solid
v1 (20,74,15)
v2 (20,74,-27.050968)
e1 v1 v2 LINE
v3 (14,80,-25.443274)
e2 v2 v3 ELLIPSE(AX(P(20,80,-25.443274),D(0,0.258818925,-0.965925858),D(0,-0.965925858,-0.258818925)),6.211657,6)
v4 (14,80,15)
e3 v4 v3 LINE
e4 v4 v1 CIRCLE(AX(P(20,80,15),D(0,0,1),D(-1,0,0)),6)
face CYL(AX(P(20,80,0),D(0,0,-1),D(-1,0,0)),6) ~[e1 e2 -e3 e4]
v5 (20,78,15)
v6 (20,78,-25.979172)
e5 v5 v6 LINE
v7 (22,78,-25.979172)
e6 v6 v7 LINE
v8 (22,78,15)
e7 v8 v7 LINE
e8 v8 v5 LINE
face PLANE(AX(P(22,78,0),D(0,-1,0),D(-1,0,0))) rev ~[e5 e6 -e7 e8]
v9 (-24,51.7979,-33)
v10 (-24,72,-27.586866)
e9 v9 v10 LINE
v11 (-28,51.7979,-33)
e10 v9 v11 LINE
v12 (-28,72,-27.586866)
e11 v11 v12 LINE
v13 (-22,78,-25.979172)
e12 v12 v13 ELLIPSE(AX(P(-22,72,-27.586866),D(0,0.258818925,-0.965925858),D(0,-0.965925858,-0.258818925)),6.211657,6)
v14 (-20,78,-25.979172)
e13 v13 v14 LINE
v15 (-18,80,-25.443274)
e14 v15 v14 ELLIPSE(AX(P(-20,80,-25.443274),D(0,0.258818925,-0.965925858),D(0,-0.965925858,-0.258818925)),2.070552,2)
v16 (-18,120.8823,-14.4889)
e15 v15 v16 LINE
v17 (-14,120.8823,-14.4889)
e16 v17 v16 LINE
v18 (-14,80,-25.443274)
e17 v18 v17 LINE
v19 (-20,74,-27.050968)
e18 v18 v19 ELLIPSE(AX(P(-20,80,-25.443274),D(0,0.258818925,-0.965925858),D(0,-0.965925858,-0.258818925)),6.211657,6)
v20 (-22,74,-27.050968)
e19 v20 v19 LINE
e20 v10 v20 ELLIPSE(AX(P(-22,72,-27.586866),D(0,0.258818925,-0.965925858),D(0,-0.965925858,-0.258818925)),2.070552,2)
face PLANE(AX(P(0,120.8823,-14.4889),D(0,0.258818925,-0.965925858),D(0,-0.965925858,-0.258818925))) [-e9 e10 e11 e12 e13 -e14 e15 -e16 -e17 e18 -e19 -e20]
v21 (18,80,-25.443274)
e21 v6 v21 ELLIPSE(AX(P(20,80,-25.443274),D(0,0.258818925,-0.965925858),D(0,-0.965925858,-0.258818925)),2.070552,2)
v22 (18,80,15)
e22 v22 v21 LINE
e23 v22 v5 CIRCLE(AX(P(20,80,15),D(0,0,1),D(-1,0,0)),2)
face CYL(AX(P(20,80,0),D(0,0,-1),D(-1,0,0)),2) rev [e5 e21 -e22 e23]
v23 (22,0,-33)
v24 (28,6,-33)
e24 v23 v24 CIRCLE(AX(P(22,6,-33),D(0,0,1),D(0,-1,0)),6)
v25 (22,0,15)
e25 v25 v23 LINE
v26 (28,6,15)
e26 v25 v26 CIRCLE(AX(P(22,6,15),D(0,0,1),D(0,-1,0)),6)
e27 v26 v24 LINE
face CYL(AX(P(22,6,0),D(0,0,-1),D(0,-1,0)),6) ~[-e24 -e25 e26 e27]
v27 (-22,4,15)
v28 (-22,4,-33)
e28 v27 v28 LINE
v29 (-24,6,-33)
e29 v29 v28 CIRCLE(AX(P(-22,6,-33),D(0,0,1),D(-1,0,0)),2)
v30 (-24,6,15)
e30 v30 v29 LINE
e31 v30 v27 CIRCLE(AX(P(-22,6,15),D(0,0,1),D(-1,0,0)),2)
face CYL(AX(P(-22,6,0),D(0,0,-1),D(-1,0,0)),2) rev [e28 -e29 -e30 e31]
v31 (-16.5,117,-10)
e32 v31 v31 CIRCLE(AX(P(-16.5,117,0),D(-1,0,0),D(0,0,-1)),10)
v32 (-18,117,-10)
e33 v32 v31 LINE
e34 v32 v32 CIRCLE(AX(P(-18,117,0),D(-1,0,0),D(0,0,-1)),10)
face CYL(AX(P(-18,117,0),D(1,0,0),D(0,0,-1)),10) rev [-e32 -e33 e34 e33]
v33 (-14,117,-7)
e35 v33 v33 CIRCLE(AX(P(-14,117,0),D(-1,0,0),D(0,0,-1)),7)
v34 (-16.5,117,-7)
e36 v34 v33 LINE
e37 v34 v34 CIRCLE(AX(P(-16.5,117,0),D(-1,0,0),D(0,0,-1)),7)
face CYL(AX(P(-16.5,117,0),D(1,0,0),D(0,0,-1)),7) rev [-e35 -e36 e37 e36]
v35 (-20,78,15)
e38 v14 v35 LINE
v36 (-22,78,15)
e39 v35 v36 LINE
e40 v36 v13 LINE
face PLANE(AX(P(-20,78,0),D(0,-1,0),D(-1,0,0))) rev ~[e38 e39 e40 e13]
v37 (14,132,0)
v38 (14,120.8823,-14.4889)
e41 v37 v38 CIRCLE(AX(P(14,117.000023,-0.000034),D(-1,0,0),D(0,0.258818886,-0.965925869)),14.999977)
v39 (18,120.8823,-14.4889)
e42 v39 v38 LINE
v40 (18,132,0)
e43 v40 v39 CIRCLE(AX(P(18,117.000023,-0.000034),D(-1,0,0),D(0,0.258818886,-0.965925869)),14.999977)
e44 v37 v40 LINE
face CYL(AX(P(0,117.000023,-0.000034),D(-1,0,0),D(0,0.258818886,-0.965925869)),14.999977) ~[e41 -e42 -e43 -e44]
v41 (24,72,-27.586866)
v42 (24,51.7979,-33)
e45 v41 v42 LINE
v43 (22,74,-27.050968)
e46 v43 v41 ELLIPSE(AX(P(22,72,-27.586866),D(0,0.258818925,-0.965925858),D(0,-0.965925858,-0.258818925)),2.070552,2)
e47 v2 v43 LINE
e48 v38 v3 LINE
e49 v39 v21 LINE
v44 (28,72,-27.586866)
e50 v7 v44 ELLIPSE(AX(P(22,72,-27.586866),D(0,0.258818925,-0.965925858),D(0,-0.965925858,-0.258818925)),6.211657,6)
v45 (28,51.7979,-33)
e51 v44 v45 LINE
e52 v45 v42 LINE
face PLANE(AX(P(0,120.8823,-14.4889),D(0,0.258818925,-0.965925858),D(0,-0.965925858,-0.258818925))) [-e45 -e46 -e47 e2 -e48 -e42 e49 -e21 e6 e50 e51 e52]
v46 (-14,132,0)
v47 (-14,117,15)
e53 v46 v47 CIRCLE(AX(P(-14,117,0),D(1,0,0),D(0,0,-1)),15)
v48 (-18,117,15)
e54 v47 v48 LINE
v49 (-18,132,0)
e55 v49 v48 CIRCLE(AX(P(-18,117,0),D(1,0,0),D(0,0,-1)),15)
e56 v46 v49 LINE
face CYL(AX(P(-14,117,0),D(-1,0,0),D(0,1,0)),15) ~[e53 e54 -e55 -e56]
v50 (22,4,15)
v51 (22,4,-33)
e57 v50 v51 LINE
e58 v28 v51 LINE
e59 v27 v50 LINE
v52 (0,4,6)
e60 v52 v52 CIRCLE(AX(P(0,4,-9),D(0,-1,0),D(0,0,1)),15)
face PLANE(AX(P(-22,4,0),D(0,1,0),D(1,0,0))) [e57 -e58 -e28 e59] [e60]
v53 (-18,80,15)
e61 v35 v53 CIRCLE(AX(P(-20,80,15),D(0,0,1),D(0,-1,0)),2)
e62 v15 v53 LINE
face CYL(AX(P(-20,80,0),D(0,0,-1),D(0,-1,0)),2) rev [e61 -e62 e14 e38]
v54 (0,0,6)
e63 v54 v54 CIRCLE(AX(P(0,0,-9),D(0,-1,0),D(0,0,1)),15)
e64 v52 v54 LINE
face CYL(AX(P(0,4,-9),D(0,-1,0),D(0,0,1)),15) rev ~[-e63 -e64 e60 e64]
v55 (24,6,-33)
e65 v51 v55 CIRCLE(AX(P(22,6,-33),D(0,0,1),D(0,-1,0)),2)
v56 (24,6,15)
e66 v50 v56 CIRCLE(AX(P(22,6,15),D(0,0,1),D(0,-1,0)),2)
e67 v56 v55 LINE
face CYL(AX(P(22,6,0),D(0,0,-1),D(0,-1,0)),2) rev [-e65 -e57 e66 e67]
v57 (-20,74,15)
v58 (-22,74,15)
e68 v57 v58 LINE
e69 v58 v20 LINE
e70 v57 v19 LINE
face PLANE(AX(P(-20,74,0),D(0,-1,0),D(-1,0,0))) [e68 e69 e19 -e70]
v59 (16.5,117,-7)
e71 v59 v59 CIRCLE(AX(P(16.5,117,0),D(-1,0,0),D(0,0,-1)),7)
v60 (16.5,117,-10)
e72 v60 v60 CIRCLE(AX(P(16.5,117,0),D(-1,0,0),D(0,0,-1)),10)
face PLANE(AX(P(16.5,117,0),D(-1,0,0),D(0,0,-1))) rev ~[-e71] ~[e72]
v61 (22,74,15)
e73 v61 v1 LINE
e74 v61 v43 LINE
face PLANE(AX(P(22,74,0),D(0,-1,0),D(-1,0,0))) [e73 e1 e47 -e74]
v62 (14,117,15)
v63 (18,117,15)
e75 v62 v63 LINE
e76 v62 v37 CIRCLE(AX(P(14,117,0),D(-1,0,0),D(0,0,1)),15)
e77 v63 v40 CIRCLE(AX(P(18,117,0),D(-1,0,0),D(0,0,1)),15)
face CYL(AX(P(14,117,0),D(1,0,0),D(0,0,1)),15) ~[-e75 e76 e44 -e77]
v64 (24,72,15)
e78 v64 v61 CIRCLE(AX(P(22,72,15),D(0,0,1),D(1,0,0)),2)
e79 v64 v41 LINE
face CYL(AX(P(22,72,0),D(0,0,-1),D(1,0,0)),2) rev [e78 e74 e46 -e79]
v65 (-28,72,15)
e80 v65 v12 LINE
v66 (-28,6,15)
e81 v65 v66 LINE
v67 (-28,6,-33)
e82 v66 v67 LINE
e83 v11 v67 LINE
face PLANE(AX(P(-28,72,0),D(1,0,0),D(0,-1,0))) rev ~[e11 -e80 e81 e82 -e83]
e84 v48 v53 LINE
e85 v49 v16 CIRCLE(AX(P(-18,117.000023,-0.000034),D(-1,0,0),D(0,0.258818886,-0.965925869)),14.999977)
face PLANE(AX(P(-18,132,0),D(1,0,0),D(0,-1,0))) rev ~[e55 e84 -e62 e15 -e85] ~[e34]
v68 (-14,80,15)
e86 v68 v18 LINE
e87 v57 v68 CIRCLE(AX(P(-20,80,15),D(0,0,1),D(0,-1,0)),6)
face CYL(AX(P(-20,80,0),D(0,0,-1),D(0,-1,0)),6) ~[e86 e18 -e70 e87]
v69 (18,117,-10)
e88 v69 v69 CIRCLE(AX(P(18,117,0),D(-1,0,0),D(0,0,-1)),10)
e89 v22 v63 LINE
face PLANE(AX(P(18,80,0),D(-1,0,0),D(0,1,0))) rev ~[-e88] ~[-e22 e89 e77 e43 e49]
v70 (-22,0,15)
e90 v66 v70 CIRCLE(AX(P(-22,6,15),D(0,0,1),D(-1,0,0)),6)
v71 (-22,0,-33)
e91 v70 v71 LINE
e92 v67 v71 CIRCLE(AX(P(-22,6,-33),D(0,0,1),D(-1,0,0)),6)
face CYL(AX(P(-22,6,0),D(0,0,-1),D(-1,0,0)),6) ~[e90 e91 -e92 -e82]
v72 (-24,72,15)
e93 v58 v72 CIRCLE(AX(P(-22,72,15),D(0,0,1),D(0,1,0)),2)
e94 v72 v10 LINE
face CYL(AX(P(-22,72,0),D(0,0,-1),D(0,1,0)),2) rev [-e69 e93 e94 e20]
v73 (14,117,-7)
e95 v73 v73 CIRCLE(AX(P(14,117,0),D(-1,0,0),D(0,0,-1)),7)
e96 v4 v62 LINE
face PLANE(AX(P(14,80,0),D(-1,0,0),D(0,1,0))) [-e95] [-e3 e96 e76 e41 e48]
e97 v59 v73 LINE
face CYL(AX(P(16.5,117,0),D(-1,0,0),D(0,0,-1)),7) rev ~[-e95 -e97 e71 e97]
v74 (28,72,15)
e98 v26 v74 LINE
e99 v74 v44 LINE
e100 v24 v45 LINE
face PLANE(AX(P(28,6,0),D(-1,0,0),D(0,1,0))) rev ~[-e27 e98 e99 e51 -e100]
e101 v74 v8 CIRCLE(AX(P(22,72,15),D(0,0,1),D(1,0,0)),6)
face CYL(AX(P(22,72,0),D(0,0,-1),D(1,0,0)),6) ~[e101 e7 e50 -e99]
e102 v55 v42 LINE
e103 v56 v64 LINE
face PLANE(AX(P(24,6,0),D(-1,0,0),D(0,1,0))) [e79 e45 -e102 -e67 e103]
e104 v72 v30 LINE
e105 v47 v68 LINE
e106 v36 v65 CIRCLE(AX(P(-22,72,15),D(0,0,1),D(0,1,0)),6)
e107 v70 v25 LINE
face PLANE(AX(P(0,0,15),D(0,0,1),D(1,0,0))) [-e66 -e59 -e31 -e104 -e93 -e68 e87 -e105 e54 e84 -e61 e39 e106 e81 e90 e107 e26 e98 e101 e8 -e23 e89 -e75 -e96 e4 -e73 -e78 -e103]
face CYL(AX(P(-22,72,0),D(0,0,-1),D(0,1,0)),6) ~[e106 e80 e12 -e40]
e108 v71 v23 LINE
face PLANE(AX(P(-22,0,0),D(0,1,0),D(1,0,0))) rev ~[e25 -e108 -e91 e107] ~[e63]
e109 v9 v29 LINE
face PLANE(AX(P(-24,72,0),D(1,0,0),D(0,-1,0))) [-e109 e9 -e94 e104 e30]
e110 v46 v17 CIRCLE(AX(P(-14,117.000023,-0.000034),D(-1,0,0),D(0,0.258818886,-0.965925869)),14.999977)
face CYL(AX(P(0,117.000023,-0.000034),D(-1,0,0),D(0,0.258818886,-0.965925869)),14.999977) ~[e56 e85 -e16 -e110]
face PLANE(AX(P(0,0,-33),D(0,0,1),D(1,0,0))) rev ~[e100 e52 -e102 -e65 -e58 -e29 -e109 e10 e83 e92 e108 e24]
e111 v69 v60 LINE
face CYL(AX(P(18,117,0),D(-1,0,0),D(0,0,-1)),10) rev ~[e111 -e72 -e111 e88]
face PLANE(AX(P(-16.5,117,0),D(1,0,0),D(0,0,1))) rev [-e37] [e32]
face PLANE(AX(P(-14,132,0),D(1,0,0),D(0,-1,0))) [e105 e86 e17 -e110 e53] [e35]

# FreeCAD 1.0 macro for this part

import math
import FreeCAD as App
import Part
import Sketcher
from FreeCAD import Vector
Q = App.Units.Quantity


def edges_at(feature, points):
    """Names of the edges that pass closest to the given points."""
    edges = feature.Shape.Edges
    near = lambda p: min(range(len(edges)), key=lambda i: edges[i].distToShape(Part.Vertex(*p))[0])
    return sorted({f"Edge{near(p) + 1}" for p in points})

doc = App.newDocument("Part")
body = doc.addObject("PartDesign::Body", "Body")

# Sketch on XY plane
sketch1 = body.newObject("Sketcher::SketchObject", "Sketch")
sketch1.AttachmentSupport = (doc.getObject("XY_Plane"), [""])
sketch1.MapMode = "FlatFace"
sketch1.addGeometry([
    Part.LineSegment(Vector(-14, 132, 0), Vector(-18, 132, 0)),  # 0
    Part.LineSegment(Vector(-18, 132, 0), Vector(-18, 80, 0)),  # 1
    Part.ArcOfCircle(Part.Circle(Vector(-20, 80, 0), Vector(0, 0, 1), 2), math.radians(-90), math.radians(0)),  # 2
    Part.LineSegment(Vector(-20, 78, 0), Vector(-22, 78, 0)),  # 3
    Part.ArcOfCircle(Part.Circle(Vector(-22, 72, 0), Vector(0, 0, 1), 6), math.radians(90), math.radians(180)),  # 4
    Part.LineSegment(Vector(-28, 72, 0), Vector(-28, 6, 0)),  # 5
    Part.ArcOfCircle(Part.Circle(Vector(-22, 6, 0), Vector(0, 0, 1), 6), math.radians(180), math.radians(270)),  # 6
    Part.LineSegment(Vector(-22, 0, 0), Vector(22, 0, 0)),  # 7
    Part.ArcOfCircle(Part.Circle(Vector(22, 6, 0), Vector(0, 0, 1), 6), math.radians(-90), math.radians(0)),  # 8
    Part.LineSegment(Vector(28, 6, 0), Vector(28, 72, 0)),  # 9
    Part.ArcOfCircle(Part.Circle(Vector(22, 72, 0), Vector(0, 0, 1), 6), math.radians(0), math.radians(90)),  # 10
    Part.LineSegment(Vector(22, 78, 0), Vector(20, 78, 0)),  # 11
    Part.ArcOfCircle(Part.Circle(Vector(20, 80, 0), Vector(0, 0, 1), 2), math.radians(180), math.radians(270)),  # 12
    Part.LineSegment(Vector(18, 80, 0), Vector(18, 132, 0)),  # 13
    Part.LineSegment(Vector(18, 132, 0), Vector(14, 132, 0)),  # 14
    Part.LineSegment(Vector(14, 132, 0), Vector(14, 80, 0)),  # 15
    Part.ArcOfCircle(Part.Circle(Vector(20, 80, 0), Vector(0, 0, 1), 6), math.radians(180), math.radians(270)),  # 16
    Part.LineSegment(Vector(20, 74, 0), Vector(22, 74, 0)),  # 17
    Part.ArcOfCircle(Part.Circle(Vector(22, 72, 0), Vector(0, 0, 1), 2), math.radians(0), math.radians(90)),  # 18
    Part.LineSegment(Vector(24, 72, 0), Vector(24, 6, 0)),  # 19
    Part.ArcOfCircle(Part.Circle(Vector(22, 6, 0), Vector(0, 0, 1), 2), math.radians(-90), math.radians(0)),  # 20
    Part.LineSegment(Vector(22, 4, 0), Vector(-22, 4, 0)),  # 21
    Part.ArcOfCircle(Part.Circle(Vector(-22, 6, 0), Vector(0, 0, 1), 2), math.radians(180), math.radians(270)),  # 22
    Part.LineSegment(Vector(-24, 6, 0), Vector(-24, 72, 0)),  # 23
    Part.ArcOfCircle(Part.Circle(Vector(-22, 72, 0), Vector(0, 0, 1), 2), math.radians(90), math.radians(180)),  # 24
    Part.LineSegment(Vector(-22, 74, 0), Vector(-20, 74, 0)),  # 25
    Part.ArcOfCircle(Part.Circle(Vector(-20, 80, 0), Vector(0, 0, 1), 6), math.radians(-90), math.radians(0)),  # 26
    Part.LineSegment(Vector(-14, 80, 0), Vector(-14, 132, 0)),  # 27
], False)
sketch1.addConstraint([
    Sketcher.Constraint("Coincident", 0, 2, 1, 1),
    Sketcher.Constraint("Tangent", 1, 2, 2, 2),
    Sketcher.Constraint("Tangent", 2, 1, 3, 1),
    Sketcher.Constraint("Tangent", 3, 2, 4, 1),
    Sketcher.Constraint("Tangent", 4, 2, 5, 1),
    Sketcher.Constraint("Tangent", 5, 2, 6, 1),
    Sketcher.Constraint("Tangent", 6, 2, 7, 1),
    Sketcher.Constraint("Tangent", 7, 2, 8, 1),
    Sketcher.Constraint("Tangent", 8, 2, 9, 1),
    Sketcher.Constraint("Tangent", 9, 2, 10, 1),
    Sketcher.Constraint("Tangent", 10, 2, 11, 1),
    Sketcher.Constraint("Tangent", 11, 2, 12, 2),
    Sketcher.Constraint("Tangent", 12, 1, 13, 1),
    Sketcher.Constraint("Coincident", 13, 2, 14, 1),
    Sketcher.Constraint("Coincident", 14, 2, 15, 1),
    Sketcher.Constraint("Tangent", 15, 2, 16, 1),
    Sketcher.Constraint("Tangent", 16, 2, 17, 1),
    Sketcher.Constraint("Tangent", 17, 2, 18, 2),
    Sketcher.Constraint("Tangent", 18, 1, 19, 1),
    Sketcher.Constraint("Tangent", 19, 2, 20, 2),
    Sketcher.Constraint("Tangent", 20, 1, 21, 1),
    Sketcher.Constraint("Tangent", 21, 2, 22, 2),
    Sketcher.Constraint("Tangent", 22, 1, 23, 1),
    Sketcher.Constraint("Tangent", 23, 2, 24, 2),
    Sketcher.Constraint("Tangent", 24, 1, 25, 1),
    Sketcher.Constraint("Tangent", 25, 2, 26, 1),
    Sketcher.Constraint("Tangent", 26, 2, 27, 1),
    Sketcher.Constraint("Coincident", 27, 2, 0, 1),
    Sketcher.Constraint("Horizontal", 0),
    Sketcher.Constraint("Vertical", 1),
    Sketcher.Constraint("Horizontal", 3),
    Sketcher.Constraint("Vertical", 5),
    Sketcher.Constraint("Horizontal", 7),
    Sketcher.Constraint("Vertical", 9),
    Sketcher.Constraint("Horizontal", 11),
    Sketcher.Constraint("Vertical", 13),
    Sketcher.Constraint("Horizontal", 14),
    Sketcher.Constraint("Vertical", 15),
    Sketcher.Constraint("Horizontal", 17),
    Sketcher.Constraint("Vertical", 19),
    Sketcher.Constraint("Horizontal", 21),
    Sketcher.Constraint("Vertical", 23),
    Sketcher.Constraint("Horizontal", 25),
    Sketcher.Constraint("Vertical", 27),
    Sketcher.Constraint("Coincident", 16, 3, 12, 3),
    Sketcher.Constraint("Coincident", 18, 3, 10, 3),
    Sketcher.Constraint("Coincident", 20, 3, 8, 3),
    Sketcher.Constraint("Coincident", 22, 3, 6, 3),
    Sketcher.Constraint("Coincident", 24, 3, 4, 3),
    Sketcher.Constraint("Coincident", 26, 3, 2, 3),
    Sketcher.Constraint("Equal", 4, 6),
    Sketcher.Constraint("Equal", 6, 8),
    Sketcher.Constraint("Equal", 8, 10),
    Sketcher.Constraint("Equal", 2, 12),
    Sketcher.Constraint("Equal", 10, 16),
    Sketcher.Constraint("Symmetric", 6, 2, 7, 2, -1, 1),
    Sketcher.Constraint("Symmetric", 2, 3, 12, 3, -2),
    Sketcher.Constraint("Horizontal", 0, 2, 13, 2),
    Sketcher.Constraint("Radius", 2, Q("2 mm")),
    Sketcher.Constraint("Radius", 4, Q("6 mm")),
    Sketcher.Constraint("DistanceX", 3, 2, 3, 1, Q("2 mm")),
    Sketcher.Constraint("DistanceY", -1, 1, 0, 2, Q("132 mm")),
    Sketcher.Constraint("DistanceY", -1, 1, 2, 1, Q("78 mm")),
    Sketcher.Constraint("DistanceX", 0, 2, 13, 2, Q("36 mm")),
])
pad1 = body.newObject("PartDesign::Pad", "Pad")
pad1.Profile = sketch1
pad1.Type = "TwoLengths"
pad1.Length = 15
pad1.Length2 = 33
doc.recompute()

fillet = body.newObject("PartDesign::Fillet", "Fillet")
fillet.Base = (pad1, edges_at(pad1, [(-16, 132, 15), (16, 132, 15)]))
fillet.Radius = 15

# Sketch on YZ plane
sketch2 = body.newObject("Sketcher::SketchObject", "Sketch001")
sketch2.AttachmentSupport = (doc.getObject("YZ_Plane"), [""])
sketch2.MapMode = "FlatFace"
sketch2.addGeometry([
    Part.LineSegment(Vector(52, -33, 0), Vector(132, -33, 0)),
    Part.LineSegment(Vector(132, -33, 0), Vector(132, 0, 0)),
    Part.ArcOfCircle(Part.Circle(Vector(117, 0, 0), Vector(0, 0, 1), 15), math.radians(-75), math.radians(0)),
    Part.LineSegment(Vector(121, -14, 0), Vector(52, -33, 0)),
], False)
sketch2.addConstraint([
    Sketcher.Constraint("Coincident", 0, 2, 1, 1),
    Sketcher.Constraint("Tangent", 1, 2, 2, 2),
    Sketcher.Constraint("Tangent", 2, 1, 3, 1),
    Sketcher.Constraint("Coincident", 3, 2, 0, 1),
    Sketcher.Constraint("Horizontal", 0),
    Sketcher.Constraint("Vertical", 1),
    Sketcher.Constraint("PointOnObject", 2, 3, -1),
    Sketcher.Constraint("Radius", 2, Q("15 mm")),
    Sketcher.Constraint("DistanceY", 1, 1, 1, 2, Q("33 mm")),
    Sketcher.Constraint("Angle", 3, Q("-165 deg")),
    Sketcher.Constraint("DistanceX", -1, 1, 2, 3, Q("117 mm")),
])
pocket1 = body.newObject("PartDesign::Pocket", "Pocket")
pocket1.Profile = sketch2
pocket1.Type = "ThroughAll"
pocket1.Midplane = True

# Sketch on YZ plane
sketch3 = body.newObject("Sketcher::SketchObject", "Sketch002")
sketch3.AttachmentSupport = (doc.getObject("YZ_Plane"), [""])
sketch3.MapMode = "FlatFace"
sketch3.AttachmentOffset = App.Placement(Vector(0, 0, 18), App.Rotation())
sketch3.addGeometry(Part.Circle(Vector(117, 0, 0), Vector(0, 0, 1), 7), False)
sketch3.addConstraint([
    Sketcher.Constraint("PointOnObject", 0, 3, -1),
    Sketcher.Constraint("Diameter", 0, Q("14 mm")),
    Sketcher.Constraint("DistanceX", -1, 1, 0, 3, Q("117 mm")),
])
doc.recompute()
hole = body.newObject("PartDesign::Hole", "Hole")
hole.Profile = sketch3
hole.ThreadType = "None"
hole.Diameter = 14
hole.DepthType = "Dimension"
hole.Depth = 4
hole.DrillPoint = "Flat"
hole.HoleCutType = "Counterbore"
hole.HoleCutDiameter = 20
hole.HoleCutDepth = 1.5
doc.recompute()

mirrored = body.newObject("PartDesign::Mirrored", "Mirrored")
mirrored.Originals = [hole]
mirrored.MirrorPlane = (doc.getObject("YZ_Plane"), [""])
body.Tip = mirrored

# Sketch on XZ plane
sketch4 = body.newObject("Sketcher::SketchObject", "Sketch003")
sketch4.AttachmentSupport = (doc.getObject("XZ_Plane"), [""])
sketch4.MapMode = "FlatFace"
sketch4.AttachmentOffset = App.Placement(Vector(0, 0, -4), App.Rotation())
sketch4.addGeometry(Part.Circle(Vector(0, -9, 0), Vector(0, 0, 1), 15), False)
sketch4.addConstraint([
    Sketcher.Constraint("PointOnObject", 0, 3, -2),
    Sketcher.Constraint("Diameter", 0, Q("30 mm")),
    Sketcher.Constraint("DistanceY", 0, 3, -1, 1, Q("9 mm")),
])
doc.recompute()
hole2 = body.newObject("PartDesign::Hole", "Hole001")
hole2.Profile = sketch4
hole2.ThreadType = "None"
hole2.Diameter = 30
hole2.DepthType = "ThroughAll"
hole2.Reversed = True

doc.recompute()
